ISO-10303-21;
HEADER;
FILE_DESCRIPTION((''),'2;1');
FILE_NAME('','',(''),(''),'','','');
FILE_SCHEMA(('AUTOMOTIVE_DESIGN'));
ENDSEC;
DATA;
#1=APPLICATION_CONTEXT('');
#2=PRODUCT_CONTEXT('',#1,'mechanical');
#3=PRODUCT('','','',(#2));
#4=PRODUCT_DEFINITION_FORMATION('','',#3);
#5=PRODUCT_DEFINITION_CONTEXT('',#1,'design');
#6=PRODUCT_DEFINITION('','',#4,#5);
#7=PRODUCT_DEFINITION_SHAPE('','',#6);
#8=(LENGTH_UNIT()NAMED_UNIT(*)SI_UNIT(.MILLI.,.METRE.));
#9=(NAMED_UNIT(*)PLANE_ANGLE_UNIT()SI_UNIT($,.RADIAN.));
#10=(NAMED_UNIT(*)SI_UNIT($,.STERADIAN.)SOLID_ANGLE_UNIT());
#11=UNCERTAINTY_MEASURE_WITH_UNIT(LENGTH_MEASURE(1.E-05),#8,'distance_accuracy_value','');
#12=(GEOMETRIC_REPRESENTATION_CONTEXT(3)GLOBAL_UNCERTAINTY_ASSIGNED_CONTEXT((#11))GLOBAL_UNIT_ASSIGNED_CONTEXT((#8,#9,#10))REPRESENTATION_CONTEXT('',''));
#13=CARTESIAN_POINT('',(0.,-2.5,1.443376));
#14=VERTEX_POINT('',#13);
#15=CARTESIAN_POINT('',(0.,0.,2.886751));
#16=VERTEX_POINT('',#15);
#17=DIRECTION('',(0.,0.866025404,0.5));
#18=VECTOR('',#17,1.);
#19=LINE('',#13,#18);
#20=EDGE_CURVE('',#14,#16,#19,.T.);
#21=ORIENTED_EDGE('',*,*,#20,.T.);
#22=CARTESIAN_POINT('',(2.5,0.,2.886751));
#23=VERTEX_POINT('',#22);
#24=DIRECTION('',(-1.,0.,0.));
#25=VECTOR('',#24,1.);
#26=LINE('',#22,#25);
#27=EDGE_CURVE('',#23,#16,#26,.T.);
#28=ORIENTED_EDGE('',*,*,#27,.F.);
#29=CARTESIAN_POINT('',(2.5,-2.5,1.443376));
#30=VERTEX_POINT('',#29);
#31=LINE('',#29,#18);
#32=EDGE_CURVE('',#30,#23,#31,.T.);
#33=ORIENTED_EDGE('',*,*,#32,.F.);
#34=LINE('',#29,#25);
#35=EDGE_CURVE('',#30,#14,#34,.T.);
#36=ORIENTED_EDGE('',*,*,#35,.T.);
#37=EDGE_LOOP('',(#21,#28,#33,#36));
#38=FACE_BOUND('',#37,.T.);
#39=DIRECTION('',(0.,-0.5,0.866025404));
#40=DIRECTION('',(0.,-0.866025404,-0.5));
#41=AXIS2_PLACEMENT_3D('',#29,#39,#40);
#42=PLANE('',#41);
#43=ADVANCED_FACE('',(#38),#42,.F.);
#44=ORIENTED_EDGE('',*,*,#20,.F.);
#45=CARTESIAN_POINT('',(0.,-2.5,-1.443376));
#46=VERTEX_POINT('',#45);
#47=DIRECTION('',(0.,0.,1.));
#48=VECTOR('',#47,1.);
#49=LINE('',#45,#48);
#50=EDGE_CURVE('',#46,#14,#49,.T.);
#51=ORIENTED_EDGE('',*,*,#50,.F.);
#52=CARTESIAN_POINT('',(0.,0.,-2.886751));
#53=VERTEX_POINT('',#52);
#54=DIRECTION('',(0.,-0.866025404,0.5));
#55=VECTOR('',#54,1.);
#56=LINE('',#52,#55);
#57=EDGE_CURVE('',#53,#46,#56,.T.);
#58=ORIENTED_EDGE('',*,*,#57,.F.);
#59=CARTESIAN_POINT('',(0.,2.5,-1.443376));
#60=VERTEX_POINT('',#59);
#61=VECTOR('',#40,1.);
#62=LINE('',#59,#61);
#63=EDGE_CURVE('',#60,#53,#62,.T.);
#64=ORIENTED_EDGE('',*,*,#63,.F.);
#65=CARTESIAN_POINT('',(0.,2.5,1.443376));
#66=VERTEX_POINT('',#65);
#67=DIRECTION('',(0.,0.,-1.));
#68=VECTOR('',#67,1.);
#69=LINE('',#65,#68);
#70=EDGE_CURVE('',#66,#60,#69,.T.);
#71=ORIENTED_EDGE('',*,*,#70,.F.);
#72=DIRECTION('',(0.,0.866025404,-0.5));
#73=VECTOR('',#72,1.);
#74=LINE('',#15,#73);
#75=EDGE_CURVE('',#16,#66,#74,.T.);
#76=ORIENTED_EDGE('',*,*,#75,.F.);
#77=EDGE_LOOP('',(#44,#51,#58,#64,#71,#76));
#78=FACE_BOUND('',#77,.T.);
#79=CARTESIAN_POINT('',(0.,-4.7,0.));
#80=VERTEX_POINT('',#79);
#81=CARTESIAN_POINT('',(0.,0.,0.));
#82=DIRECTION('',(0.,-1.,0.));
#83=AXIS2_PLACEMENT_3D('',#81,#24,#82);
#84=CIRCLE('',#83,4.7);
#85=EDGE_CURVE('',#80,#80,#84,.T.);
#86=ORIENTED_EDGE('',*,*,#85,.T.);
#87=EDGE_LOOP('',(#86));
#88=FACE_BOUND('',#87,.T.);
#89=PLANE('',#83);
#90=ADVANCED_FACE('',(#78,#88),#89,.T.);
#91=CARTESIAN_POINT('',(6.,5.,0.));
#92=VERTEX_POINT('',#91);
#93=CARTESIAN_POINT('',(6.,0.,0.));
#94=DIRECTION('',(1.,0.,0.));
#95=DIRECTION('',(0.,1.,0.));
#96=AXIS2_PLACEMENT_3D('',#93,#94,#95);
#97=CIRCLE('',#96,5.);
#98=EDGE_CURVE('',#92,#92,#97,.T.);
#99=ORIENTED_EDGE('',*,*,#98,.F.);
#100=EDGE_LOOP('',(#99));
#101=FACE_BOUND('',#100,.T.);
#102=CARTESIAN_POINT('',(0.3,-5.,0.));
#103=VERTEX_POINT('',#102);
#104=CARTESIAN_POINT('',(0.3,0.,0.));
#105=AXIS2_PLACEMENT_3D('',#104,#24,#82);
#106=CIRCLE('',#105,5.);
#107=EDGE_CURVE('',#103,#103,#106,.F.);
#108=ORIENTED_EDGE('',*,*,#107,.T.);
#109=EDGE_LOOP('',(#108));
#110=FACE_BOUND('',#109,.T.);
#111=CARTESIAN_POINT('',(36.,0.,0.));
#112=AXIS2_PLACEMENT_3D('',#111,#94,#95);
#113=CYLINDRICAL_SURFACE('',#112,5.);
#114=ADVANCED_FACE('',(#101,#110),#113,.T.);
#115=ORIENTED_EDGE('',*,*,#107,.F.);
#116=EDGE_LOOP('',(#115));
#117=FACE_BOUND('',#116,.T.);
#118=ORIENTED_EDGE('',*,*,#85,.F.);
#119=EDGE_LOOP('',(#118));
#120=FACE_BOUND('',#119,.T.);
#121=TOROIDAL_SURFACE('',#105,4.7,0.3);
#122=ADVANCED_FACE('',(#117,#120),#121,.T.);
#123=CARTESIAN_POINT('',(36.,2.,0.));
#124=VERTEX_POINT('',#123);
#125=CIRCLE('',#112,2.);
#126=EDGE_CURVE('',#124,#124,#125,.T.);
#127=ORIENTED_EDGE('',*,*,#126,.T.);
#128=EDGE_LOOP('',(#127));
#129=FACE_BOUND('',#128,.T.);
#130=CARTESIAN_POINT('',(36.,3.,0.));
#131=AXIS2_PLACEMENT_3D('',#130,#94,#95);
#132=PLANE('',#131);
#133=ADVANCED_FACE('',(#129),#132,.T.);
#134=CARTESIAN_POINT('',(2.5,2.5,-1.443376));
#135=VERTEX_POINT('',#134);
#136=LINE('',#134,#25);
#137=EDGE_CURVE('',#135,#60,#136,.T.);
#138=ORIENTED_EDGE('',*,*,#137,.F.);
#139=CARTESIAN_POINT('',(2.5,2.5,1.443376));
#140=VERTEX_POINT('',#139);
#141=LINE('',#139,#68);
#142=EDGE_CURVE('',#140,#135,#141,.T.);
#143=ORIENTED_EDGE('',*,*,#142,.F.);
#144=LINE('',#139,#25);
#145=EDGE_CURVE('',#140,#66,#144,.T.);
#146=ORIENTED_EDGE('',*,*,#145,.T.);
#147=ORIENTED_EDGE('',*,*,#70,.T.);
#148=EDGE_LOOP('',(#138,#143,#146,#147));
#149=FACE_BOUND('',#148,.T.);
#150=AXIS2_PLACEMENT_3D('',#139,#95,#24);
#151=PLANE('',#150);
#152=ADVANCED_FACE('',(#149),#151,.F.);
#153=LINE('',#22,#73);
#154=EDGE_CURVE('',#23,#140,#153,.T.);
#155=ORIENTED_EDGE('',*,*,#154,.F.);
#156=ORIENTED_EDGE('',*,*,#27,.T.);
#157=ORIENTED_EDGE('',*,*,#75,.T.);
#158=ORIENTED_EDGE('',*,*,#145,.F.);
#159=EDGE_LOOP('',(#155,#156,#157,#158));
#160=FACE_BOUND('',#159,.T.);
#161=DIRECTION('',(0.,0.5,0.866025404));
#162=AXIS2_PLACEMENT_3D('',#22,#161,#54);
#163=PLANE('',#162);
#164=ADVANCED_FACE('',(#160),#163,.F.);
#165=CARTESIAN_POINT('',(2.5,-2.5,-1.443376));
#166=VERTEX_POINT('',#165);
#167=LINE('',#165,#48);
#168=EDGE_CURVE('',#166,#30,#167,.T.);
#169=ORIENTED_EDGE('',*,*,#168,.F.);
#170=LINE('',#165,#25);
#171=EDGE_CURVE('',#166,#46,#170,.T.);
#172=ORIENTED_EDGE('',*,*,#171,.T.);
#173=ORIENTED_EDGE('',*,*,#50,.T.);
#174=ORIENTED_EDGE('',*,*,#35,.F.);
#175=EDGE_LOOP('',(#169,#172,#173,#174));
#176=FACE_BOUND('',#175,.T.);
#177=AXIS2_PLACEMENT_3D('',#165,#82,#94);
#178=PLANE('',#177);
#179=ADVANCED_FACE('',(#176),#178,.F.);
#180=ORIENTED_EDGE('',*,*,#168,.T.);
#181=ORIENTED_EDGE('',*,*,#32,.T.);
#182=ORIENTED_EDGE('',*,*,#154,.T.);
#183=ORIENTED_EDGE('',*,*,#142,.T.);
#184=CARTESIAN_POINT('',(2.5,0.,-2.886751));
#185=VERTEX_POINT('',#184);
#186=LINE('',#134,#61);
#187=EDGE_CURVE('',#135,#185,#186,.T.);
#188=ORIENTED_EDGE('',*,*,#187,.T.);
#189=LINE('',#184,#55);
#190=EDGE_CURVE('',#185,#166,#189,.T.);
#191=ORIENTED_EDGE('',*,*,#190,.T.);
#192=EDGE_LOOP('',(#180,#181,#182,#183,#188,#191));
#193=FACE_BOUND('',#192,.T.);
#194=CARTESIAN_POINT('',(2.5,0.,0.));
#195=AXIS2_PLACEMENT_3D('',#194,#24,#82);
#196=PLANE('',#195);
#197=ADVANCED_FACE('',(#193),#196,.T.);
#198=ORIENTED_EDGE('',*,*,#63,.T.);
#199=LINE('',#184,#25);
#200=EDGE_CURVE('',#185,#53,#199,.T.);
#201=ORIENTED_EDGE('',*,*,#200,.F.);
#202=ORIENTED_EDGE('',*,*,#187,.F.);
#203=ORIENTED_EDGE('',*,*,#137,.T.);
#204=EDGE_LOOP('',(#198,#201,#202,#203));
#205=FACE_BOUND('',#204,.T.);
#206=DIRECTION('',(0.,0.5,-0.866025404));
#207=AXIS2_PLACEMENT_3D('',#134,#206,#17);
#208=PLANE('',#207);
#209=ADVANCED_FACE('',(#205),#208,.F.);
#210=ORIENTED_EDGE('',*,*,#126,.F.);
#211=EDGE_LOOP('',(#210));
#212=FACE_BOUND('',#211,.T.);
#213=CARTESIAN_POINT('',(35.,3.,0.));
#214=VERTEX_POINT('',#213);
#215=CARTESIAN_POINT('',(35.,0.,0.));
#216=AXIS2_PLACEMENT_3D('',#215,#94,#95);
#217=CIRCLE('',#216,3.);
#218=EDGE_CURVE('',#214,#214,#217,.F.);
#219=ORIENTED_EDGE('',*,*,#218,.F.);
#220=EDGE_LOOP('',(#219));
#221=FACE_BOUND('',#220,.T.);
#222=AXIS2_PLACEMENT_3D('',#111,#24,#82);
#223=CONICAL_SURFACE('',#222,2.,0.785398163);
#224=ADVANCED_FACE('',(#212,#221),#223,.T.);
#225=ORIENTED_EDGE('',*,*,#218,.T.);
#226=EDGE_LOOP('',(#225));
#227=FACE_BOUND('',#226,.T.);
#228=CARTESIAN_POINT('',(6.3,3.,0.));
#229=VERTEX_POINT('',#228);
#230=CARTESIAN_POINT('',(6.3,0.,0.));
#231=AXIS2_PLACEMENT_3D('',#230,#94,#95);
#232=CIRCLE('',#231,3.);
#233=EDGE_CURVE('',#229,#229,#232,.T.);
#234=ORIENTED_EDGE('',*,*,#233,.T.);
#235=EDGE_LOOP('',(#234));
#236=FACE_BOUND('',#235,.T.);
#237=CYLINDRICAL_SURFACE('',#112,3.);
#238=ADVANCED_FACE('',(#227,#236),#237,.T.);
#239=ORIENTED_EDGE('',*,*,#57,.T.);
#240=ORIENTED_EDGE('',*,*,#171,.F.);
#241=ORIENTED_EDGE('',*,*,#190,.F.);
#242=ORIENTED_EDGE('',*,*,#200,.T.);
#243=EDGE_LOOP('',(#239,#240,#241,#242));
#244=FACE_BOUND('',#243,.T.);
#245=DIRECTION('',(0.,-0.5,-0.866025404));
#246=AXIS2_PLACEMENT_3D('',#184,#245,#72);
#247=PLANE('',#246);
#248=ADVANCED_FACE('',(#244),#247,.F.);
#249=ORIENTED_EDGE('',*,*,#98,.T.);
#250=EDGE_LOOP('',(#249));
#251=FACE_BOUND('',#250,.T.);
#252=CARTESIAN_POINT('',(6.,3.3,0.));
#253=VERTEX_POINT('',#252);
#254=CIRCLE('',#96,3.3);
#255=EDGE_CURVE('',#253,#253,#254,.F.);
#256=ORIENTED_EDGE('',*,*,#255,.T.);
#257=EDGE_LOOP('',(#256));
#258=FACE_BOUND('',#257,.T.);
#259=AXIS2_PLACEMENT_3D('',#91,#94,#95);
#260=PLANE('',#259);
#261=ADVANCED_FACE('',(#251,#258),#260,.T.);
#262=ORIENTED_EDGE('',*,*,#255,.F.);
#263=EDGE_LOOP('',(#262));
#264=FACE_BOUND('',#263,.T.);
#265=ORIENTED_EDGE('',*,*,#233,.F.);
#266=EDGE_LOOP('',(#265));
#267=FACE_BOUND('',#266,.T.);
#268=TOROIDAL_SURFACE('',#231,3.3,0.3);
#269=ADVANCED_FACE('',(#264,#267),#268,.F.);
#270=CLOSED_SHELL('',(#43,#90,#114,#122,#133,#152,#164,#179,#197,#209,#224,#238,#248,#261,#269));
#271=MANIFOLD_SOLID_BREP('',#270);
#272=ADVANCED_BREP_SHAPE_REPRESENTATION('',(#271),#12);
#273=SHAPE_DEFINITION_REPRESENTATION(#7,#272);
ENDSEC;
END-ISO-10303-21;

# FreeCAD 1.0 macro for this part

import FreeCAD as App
import Part
import Sketcher
Q = App.Units.Quantity


def edges_at(feature, points):
    """Names of the edges that pass closest to the given points."""
    edges = feature.Shape.Edges
    near = lambda p: min(range(len(edges)), key=lambda i: edges[i].distToShape(Part.Vertex(*p))[0])
    return sorted({f"Edge{near(p) + 1}" for p in points})


def add_polygon(sketch, points):
    """Adds a closed chain of lines whose ends are joined by coincident constraints."""
    first, n = sketch.GeometryCount, len(points)
    for a, b in zip(points, points[1:] + points[:1]):
        sketch.addGeometry(Part.LineSegment(App.Vector(*a, 0), App.Vector(*b, 0)), False)
    for i in range(n):
        sketch.addConstraint(Sketcher.Constraint("Coincident", first + i, 2, first + (i + 1) % n, 1))

doc = App.newDocument("Part")
params = doc.addObject("Spreadsheet::Sheet", "Params")
for row, (alias, value) in enumerate([
    ("sketch1_width", "36 mm"),
    ("sketch1_width2", "30 mm"),
    ("sketch1_height", "5 mm"),
    ("sketch1_height2", "3 mm"),
    ("revolution_angle", "360 deg"),
    ("pocket1_length", "2.5 mm"),
    ("fillet_radius", "0.3 mm"),
    ("chamfer_size", "1 mm"),
], start=1):
    params.set(f"A{row}", alias)
    params.set(f"B{row}", "=" + value)
    params.setAlias(f"B{row}", alias)

body = doc.addObject("PartDesign::Body", "Body")

# Sketch on XY plane
sketch1 = body.newObject("Sketcher::SketchObject", "Sketch")
sketch1.AttachmentSupport = (doc.getObject("XY_Plane"), [""])
sketch1.MapMode = "FlatFace"
add_polygon(sketch1, [(0, 5), (0, 0), (36, 0), (36, 3), (6, 3), (6, 5)])  # lines 0-5
sketch1.addConstraint(Sketcher.Constraint("Vertical", 0))
sketch1.addConstraint(Sketcher.Constraint("Horizontal", 1))
sketch1.addConstraint(Sketcher.Constraint("Vertical", 2))
sketch1.addConstraint(Sketcher.Constraint("Horizontal", 3))
sketch1.addConstraint(Sketcher.Constraint("Vertical", 4))
sketch1.addConstraint(Sketcher.Constraint("Horizontal", 5))
sketch1.addConstraint(Sketcher.Constraint("Coincident", 0, 2, -1, 1))
sketch1.addConstraint(Sketcher.Constraint("DistanceX", 1, 1, 1, 2, Q("36 mm")))
sketch1.addConstraint(Sketcher.Constraint("DistanceX", 3, 2, 3, 1, Q("30 mm")))
sketch1.addConstraint(Sketcher.Constraint("DistanceY", 0, 2, 0, 1, Q("5 mm")))
sketch1.addConstraint(Sketcher.Constraint("DistanceY", 2, 1, 2, 2, Q("3 mm")))
sketch1.setExpression("Constraints[13]", "Params.sketch1_width")
sketch1.setExpression("Constraints[14]", "Params.sketch1_width2")
sketch1.setExpression("Constraints[15]", "Params.sketch1_height")
sketch1.setExpression("Constraints[16]", "Params.sketch1_height2")
revolution = body.newObject("PartDesign::Revolution", "Revolution")
revolution.Profile = sketch1
revolution.ReferenceAxis = (sketch1, ["H_Axis"])
revolution.setExpression("Angle", "Params.revolution_angle")

# Sketch on YZ plane
sketch2 = body.newObject("Sketcher::SketchObject", "Sketch001")
sketch2.AttachmentSupport = (doc.getObject("YZ_Plane"), [""])
sketch2.MapMode = "FlatFace"
add_polygon(sketch2, [(2.5, -1.4), (0, -2.9), (-2.5, -1.4), (-2.5, 1.4), (0, 2.9), (2.5, 1.4)])  # lines 0-5
sketch2.addConstraint(Sketcher.Constraint("Vertical", 2))
sketch2.addConstraint(Sketcher.Constraint("Vertical", 5))
sketch2.addConstraint(Sketcher.Constraint("Symmetric", 0, 2, 3, 2, -1, 1))
sketch2.addConstraint(Sketcher.Constraint("Symmetric", 1, 2, 4, 2, -1, 1))
sketch2.addConstraint(Sketcher.Constraint("PointOnObject", 0, 2, -2))
sketch2.addConstraint(Sketcher.Constraint("Parallel", 0, 3))
sketch2.addConstraint(Sketcher.Constraint("Horizontal", 2, 2, 4, 2))
sketch2.addConstraint(Sketcher.Constraint("Angle", 0, Q("-150 deg")))
sketch2.addConstraint(Sketcher.Constraint("DistanceX", 2, 2, 4, 2, Q("5 mm")))
sketch2.addConstraint(Sketcher.Constraint("DistanceY", 2, 1, 2, 2, Q("2.886751 mm")))
pocket1 = body.newObject("PartDesign::Pocket", "Pocket")
pocket1.Profile = sketch2
pocket1.setExpression("Length", "Params.pocket1_length")
pocket1.Reversed = True
doc.recompute()

fillet = body.newObject("PartDesign::Fillet", "Fillet")
fillet.Base = (pocket1, edges_at(pocket1, [(6, -3, 0), (0, -5, 0)]))
fillet.setExpression("Radius", "Params.fillet_radius")
doc.recompute()

chamfer = body.newObject("PartDesign::Chamfer", "Chamfer")
chamfer.Base = (fillet, edges_at(fillet, [(36, -3, 0)]))
chamfer.setExpression("Size", "Params.chamfer_size")

doc.recompute()
